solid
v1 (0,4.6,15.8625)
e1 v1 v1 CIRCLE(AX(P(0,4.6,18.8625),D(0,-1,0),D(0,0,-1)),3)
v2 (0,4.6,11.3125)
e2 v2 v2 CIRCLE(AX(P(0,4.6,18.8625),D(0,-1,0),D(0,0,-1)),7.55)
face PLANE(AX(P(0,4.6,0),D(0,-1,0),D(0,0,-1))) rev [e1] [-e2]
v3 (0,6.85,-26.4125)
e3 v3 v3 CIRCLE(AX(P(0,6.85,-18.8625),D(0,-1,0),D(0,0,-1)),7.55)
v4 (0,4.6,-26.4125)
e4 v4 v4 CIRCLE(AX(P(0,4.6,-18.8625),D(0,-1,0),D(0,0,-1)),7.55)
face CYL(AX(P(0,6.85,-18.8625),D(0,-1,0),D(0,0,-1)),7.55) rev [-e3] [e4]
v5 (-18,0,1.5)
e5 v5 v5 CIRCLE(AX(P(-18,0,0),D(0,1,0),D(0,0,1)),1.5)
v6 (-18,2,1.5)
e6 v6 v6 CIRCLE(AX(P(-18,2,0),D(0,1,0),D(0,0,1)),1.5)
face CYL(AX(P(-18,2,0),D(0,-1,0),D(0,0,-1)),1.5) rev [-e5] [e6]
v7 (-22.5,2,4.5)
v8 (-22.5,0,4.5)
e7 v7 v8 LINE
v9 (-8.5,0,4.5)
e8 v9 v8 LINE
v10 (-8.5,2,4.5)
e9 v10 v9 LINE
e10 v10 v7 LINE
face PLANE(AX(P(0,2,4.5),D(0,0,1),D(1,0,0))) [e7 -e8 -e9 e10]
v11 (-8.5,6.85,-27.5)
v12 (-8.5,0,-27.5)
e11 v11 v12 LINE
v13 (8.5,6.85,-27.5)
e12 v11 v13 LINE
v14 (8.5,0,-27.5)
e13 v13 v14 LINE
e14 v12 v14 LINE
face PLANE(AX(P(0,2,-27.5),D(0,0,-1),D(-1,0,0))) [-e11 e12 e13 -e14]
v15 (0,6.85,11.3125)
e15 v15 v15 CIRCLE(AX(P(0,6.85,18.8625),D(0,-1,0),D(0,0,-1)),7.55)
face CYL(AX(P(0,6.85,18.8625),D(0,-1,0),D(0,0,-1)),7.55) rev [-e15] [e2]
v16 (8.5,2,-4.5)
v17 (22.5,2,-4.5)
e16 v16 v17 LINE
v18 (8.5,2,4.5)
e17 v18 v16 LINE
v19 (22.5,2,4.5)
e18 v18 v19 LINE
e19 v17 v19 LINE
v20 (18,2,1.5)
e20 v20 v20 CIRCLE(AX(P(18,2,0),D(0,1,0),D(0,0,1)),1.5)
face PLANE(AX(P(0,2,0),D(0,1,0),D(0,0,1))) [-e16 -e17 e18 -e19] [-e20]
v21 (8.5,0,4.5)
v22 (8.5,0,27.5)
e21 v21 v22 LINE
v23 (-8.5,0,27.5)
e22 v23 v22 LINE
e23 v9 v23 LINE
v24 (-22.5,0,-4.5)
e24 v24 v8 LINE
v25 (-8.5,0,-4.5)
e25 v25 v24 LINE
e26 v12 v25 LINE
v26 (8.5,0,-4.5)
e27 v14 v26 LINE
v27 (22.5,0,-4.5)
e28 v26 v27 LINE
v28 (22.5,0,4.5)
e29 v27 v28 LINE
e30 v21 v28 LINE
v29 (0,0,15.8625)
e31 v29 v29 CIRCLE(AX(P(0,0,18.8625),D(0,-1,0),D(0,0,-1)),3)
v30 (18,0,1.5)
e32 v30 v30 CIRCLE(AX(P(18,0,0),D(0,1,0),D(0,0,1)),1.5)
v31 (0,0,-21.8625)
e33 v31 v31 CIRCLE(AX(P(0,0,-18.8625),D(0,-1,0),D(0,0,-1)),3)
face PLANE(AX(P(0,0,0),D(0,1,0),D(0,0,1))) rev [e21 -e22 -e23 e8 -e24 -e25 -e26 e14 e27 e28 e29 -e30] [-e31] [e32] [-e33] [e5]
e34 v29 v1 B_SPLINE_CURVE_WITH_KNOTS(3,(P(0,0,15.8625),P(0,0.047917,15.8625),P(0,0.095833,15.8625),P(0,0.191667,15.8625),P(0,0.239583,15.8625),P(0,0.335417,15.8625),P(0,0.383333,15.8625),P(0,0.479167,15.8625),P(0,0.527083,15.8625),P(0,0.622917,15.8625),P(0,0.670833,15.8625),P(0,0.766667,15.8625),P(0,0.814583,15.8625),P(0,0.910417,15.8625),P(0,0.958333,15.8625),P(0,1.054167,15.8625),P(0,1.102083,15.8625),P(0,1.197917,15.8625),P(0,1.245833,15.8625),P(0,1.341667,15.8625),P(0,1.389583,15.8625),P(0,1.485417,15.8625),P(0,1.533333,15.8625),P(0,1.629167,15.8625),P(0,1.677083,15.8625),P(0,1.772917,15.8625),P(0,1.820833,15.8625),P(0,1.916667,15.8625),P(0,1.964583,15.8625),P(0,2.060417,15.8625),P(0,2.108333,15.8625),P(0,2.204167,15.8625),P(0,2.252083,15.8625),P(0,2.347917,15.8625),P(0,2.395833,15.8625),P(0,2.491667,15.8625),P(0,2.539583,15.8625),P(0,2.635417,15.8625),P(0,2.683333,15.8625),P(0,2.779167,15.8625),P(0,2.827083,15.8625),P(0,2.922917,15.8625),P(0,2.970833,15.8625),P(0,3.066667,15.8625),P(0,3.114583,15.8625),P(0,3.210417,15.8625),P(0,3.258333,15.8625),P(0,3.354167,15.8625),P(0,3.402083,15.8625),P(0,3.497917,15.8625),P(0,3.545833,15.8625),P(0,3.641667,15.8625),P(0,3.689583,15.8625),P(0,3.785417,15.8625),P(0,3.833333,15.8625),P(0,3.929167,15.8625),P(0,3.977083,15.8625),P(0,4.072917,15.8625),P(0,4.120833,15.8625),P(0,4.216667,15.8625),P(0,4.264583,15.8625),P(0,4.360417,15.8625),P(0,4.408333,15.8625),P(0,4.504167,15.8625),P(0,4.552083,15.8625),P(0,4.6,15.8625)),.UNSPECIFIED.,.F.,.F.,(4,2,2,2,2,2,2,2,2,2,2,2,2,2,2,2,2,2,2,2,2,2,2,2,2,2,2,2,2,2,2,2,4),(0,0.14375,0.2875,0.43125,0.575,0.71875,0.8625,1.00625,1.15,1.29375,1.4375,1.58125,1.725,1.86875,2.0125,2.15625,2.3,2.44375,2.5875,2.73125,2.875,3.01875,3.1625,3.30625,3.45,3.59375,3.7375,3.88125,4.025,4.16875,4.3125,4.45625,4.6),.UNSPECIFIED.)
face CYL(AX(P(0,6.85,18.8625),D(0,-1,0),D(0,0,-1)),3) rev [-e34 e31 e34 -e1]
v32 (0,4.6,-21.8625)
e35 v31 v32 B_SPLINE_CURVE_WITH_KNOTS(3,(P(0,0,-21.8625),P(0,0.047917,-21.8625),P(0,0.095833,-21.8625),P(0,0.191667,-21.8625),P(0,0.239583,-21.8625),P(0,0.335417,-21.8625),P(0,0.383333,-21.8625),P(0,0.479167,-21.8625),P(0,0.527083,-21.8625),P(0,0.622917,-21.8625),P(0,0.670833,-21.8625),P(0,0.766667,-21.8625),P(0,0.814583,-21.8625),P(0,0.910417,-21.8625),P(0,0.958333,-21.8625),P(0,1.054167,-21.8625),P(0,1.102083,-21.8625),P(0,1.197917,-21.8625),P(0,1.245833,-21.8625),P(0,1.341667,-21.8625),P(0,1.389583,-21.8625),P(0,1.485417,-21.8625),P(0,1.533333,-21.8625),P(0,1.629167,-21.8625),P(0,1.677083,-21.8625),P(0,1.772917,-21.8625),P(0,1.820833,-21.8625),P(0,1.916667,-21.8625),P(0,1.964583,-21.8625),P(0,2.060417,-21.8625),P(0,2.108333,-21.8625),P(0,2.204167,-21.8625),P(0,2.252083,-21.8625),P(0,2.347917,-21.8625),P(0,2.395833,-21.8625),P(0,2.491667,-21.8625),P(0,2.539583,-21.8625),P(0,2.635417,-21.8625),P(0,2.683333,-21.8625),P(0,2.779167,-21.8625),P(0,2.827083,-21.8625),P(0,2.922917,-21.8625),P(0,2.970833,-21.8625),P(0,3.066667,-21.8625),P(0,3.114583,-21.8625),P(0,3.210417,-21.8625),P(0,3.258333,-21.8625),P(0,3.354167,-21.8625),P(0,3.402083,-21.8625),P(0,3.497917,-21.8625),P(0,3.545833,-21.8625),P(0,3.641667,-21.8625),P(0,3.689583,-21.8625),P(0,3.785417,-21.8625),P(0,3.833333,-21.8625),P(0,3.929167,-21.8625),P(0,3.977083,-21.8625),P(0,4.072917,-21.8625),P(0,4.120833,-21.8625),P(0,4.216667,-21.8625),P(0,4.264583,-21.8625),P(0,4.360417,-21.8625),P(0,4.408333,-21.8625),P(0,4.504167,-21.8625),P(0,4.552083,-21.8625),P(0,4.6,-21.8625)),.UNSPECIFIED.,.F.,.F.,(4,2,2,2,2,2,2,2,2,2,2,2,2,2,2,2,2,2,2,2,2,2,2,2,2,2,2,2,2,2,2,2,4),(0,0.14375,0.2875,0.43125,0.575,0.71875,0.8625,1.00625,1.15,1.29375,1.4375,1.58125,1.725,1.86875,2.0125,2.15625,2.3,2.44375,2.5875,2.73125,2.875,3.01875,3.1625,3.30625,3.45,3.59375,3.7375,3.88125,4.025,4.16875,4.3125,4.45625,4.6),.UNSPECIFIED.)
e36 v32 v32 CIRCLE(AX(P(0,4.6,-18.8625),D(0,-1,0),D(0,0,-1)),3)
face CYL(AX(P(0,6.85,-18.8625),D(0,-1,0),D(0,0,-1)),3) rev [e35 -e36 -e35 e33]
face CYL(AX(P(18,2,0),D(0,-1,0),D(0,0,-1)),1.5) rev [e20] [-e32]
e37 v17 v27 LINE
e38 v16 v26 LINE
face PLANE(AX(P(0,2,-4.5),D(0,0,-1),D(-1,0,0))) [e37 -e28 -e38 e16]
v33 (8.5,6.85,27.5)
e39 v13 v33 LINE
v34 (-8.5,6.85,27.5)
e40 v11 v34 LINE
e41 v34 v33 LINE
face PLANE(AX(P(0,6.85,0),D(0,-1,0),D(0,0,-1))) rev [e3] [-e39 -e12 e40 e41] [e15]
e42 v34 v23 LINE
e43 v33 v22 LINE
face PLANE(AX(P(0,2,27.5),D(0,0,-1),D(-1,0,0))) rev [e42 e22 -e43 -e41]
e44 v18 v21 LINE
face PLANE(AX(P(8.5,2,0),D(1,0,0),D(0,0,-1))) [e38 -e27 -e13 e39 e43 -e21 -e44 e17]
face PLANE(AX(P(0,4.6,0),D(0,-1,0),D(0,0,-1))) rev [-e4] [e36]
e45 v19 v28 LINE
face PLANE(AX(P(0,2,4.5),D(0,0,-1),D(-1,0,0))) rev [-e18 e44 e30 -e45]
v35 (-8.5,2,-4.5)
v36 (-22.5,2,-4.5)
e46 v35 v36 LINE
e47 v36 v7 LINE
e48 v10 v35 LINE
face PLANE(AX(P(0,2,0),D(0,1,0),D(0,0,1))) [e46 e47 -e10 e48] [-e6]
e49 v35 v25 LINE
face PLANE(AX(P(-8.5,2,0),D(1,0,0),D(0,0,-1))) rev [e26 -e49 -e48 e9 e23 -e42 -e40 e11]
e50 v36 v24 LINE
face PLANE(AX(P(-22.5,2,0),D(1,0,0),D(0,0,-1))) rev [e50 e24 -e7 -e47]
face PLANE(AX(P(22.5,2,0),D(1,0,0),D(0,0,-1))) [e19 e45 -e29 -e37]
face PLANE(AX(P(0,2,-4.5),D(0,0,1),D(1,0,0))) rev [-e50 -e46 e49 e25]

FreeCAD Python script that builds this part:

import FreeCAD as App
import Part
import Sketcher
from FreeCAD import Vector

doc = App.newDocument("Part")
body = doc.addObject("PartDesign::Body", "Body")

# Sketch on XZ plane
sketch1 = body.newObject("Sketcher::SketchObject", "Sketch")
sketch1.AttachmentSupport = (doc.getObject("XZ_Plane"), [""])
sketch1.MapMode = "FlatFace"
sketch1.addGeometry(Part.LineSegment(Vector(-8.5, 4.5, 0), Vector(-8.5, 27.5, 0)), False)
sketch1.addGeometry(Part.LineSegment(Vector(-8.5, 27.5, 0), Vector(8.5, 27.5, 0)), False)
sketch1.addGeometry(Part.LineSegment(Vector(8.5, 27.5, 0), Vector(8.5, 4.5, 0)), False)
sketch1.addGeometry(Part.LineSegment(Vector(8.5, 4.5, 0), Vector(22.5, 4.5, 0)), False)
sketch1.addGeometry(Part.LineSegment(Vector(22.5, 4.5, 0), Vector(22.5, -4.5, 0)), False)
sketch1.addGeometry(Part.LineSegment(Vector(22.5, -4.5, 0), Vector(8.5, -4.5, 0)), False)
sketch1.addGeometry(Part.LineSegment(Vector(8.5, -4.5, 0), Vector(8.5, -27.5, 0)), False)
sketch1.addGeometry(Part.LineSegment(Vector(8.5, -27.5, 0), Vector(-8.5, -27.5, 0)), False)
sketch1.addGeometry(Part.LineSegment(Vector(-8.5, -27.5, 0), Vector(-8.5, -4.5, 0)), False)
sketch1.addGeometry(Part.LineSegment(Vector(-8.5, -4.5, 0), Vector(-22.5, -4.5, 0)), False)
sketch1.addGeometry(Part.LineSegment(Vector(-22.5, -4.5, 0), Vector(-22.5, 4.5, 0)), False)
sketch1.addGeometry(Part.LineSegment(Vector(-22.5, 4.5, 0), Vector(-8.5, 4.5, 0)), False)
sketch1.addGeometry(Part.Circle(Vector(-18, 0, 0), Vector(0, 0, 1), 1.5), False)
sketch1.addGeometry(Part.Circle(Vector(18, 0, 0), Vector(0, 0, 1), 1.5), False)
sketch1.addConstraint(Sketcher.Constraint("Coincident", 0, 2, 1, 1))
sketch1.addConstraint(Sketcher.Constraint("Coincident", 1, 2, 2, 1))
sketch1.addConstraint(Sketcher.Constraint("Coincident", 2, 2, 3, 1))
sketch1.addConstraint(Sketcher.Constraint("Coincident", 3, 2, 4, 1))
sketch1.addConstraint(Sketcher.Constraint("Coincident", 4, 2, 5, 1))
sketch1.addConstraint(Sketcher.Constraint("Coincident", 5, 2, 6, 1))
sketch1.addConstraint(Sketcher.Constraint("Coincident", 6, 2, 7, 1))
sketch1.addConstraint(Sketcher.Constraint("Coincident", 7, 2, 8, 1))
sketch1.addConstraint(Sketcher.Constraint("Coincident", 8, 2, 9, 1))
sketch1.addConstraint(Sketcher.Constraint("Coincident", 9, 2, 10, 1))
sketch1.addConstraint(Sketcher.Constraint("Coincident", 10, 2, 11, 1))
sketch1.addConstraint(Sketcher.Constraint("Coincident", 11, 2, 0, 1))
sketch1.addConstraint(Sketcher.Constraint("Vertical", 0))
sketch1.addConstraint(Sketcher.Constraint("Horizontal", 1))
sketch1.addConstraint(Sketcher.Constraint("Vertical", 2))
sketch1.addConstraint(Sketcher.Constraint("Horizontal", 3))
sketch1.addConstraint(Sketcher.Constraint("Vertical", 4))
sketch1.addConstraint(Sketcher.Constraint("Horizontal", 5))
sketch1.addConstraint(Sketcher.Constraint("Vertical", 6))
sketch1.addConstraint(Sketcher.Constraint("Horizontal", 7))
sketch1.addConstraint(Sketcher.Constraint("Vertical", 8))
sketch1.addConstraint(Sketcher.Constraint("Horizontal", 9))
sketch1.addConstraint(Sketcher.Constraint("Vertical", 10))
sketch1.addConstraint(Sketcher.Constraint("Horizontal", 11))
sketch1.addConstraint(Sketcher.Constraint("Equal", 12, 13))
sketch1.addConstraint(Sketcher.Constraint("Symmetric", 12, 3, 13, 3, -1, 1))
sketch1.addConstraint(Sketcher.Constraint("Symmetric", 0, 2, 6, 2, -1, 1))
sketch1.addConstraint(Sketcher.Constraint("Symmetric", 2, 2, 8, 2, -1, 1))
sketch1.addConstraint(Sketcher.Constraint("Symmetric", 4, 2, 10, 2, -1, 1))
sketch1.addConstraint(Sketcher.Constraint("Symmetric", 5, 2, 8, 2, -2))
sketch1.addConstraint(Sketcher.Constraint("PointOnObject", 12, 3, -1))
sketch1.addConstraint(Sketcher.Constraint("Diameter", 12, 3.0))
sketch1.addConstraint(Sketcher.Constraint("DistanceX", 1, 1, 1, 2, 17.0))
sketch1.addConstraint(Sketcher.Constraint("DistanceX", 3, 1, 3, 2, 14.0))
sketch1.addConstraint(Sketcher.Constraint("DistanceY", 0, 1, 0, 2, 23.0))
sketch1.addConstraint(Sketcher.Constraint("DistanceY", 4, 2, 4, 1, 9.0))
sketch1.addConstraint(Sketcher.Constraint("DistanceX", 12, 3, -1, 1, 18.0))
pad1 = body.newObject("PartDesign::Pad", "Pad")
pad1.Profile = sketch1
pad1.Length = 2
pad1.Reversed = True

# Sketch on XZ plane
sketch2 = body.newObject("Sketcher::SketchObject", "Sketch001")
sketch2.AttachmentSupport = (doc.getObject("XZ_Plane"), [""])
sketch2.MapMode = "FlatFace"
sketch2.AttachmentOffset = App.Placement(Vector(0, 0, -2), App.Rotation())
sketch2.addGeometry(Part.LineSegment(Vector(-8, -28, 0), Vector(-8, 28, 0)), False)
sketch2.addGeometry(Part.LineSegment(Vector(-8, 28, 0), Vector(8, 28, 0)), False)
sketch2.addGeometry(Part.LineSegment(Vector(8, 28, 0), Vector(8, -28, 0)), False)
sketch2.addGeometry(Part.LineSegment(Vector(8, -28, 0), Vector(-8, -28, 0)), False)
sketch2.addConstraint(Sketcher.Constraint("Coincident", 0, 2, 1, 1))
sketch2.addConstraint(Sketcher.Constraint("Coincident", 1, 2, 2, 1))
sketch2.addConstraint(Sketcher.Constraint("Coincident", 2, 2, 3, 1))
sketch2.addConstraint(Sketcher.Constraint("Coincident", 3, 2, 0, 1))
sketch2.addConstraint(Sketcher.Constraint("Vertical", 0))
sketch2.addConstraint(Sketcher.Constraint("Horizontal", 1))
sketch2.addConstraint(Sketcher.Constraint("Vertical", 2))
sketch2.addConstraint(Sketcher.Constraint("Horizontal", 3))
sketch2.addConstraint(Sketcher.Constraint("Symmetric", 0, 2, 2, 2, -1, 1))
sketch2.addConstraint(Sketcher.Constraint("DistanceX", 1, 1, 1, 2, 17.0))
sketch2.addConstraint(Sketcher.Constraint("DistanceY", 0, 1, 0, 2, 55.0))
pad2 = body.newObject("PartDesign::Pad", "Pad001")
pad2.Profile = sketch2
pad2.Length = 2.6
pad2.Reversed = True

# Sketch on XZ plane
sketch3 = body.newObject("Sketcher::SketchObject", "Sketch002")
sketch3.AttachmentSupport = (doc.getObject("XZ_Plane"), [""])
sketch3.MapMode = "FlatFace"
sketch3.AttachmentOffset = App.Placement(Vector(0, 0, -4.6), App.Rotation())
sketch3.addGeometry(Part.LineSegment(Vector(-8, -28, 0), Vector(-8, 28, 0)), False)
sketch3.addGeometry(Part.LineSegment(Vector(-8, 28, 0), Vector(8, 28, 0)), False)
sketch3.addGeometry(Part.LineSegment(Vector(8, 28, 0), Vector(8, -28, 0)), False)
sketch3.addGeometry(Part.LineSegment(Vector(8, -28, 0), Vector(-8, -28, 0)), False)
sketch3.addGeometry(Part.Circle(Vector(0, 19, 0), Vector(0, 0, 1), 8), False)
sketch3.addGeometry(Part.Circle(Vector(0, -19, 0), Vector(0, 0, 1), 8), False)
sketch3.addConstraint(Sketcher.Constraint("Coincident", 0, 2, 1, 1))
sketch3.addConstraint(Sketcher.Constraint("Coincident", 1, 2, 2, 1))
sketch3.addConstraint(Sketcher.Constraint("Coincident", 2, 2, 3, 1))
sketch3.addConstraint(Sketcher.Constraint("Coincident", 3, 2, 0, 1))
sketch3.addConstraint(Sketcher.Constraint("Vertical", 0))
sketch3.addConstraint(Sketcher.Constraint("Horizontal", 1))
sketch3.addConstraint(Sketcher.Constraint("Vertical", 2))
sketch3.addConstraint(Sketcher.Constraint("Horizontal", 3))
sketch3.addConstraint(Sketcher.Constraint("Equal", 4, 5))
sketch3.addConstraint(Sketcher.Constraint("Symmetric", 4, 3, 5, 3, -1, 1))
sketch3.addConstraint(Sketcher.Constraint("Symmetric", 0, 2, 2, 2, -1, 1))
sketch3.addConstraint(Sketcher.Constraint("PointOnObject", 4, 3, -2))
sketch3.addConstraint(Sketcher.Constraint("Diameter", 4, 15.1))
sketch3.addConstraint(Sketcher.Constraint("DistanceX", 1, 1, 1, 2, 17.0))
sketch3.addConstraint(Sketcher.Constraint("DistanceY", 0, 1, 0, 2, 55.0))
sketch3.addConstraint(Sketcher.Constraint("DistanceY", 5, 3, 4, 3, 37.725))
pad3 = body.newObject("PartDesign::Pad", "Pad002")
pad3.Profile = sketch3
pad3.Length = 2.25
pad3.Reversed = True

# Sketch on XZ plane
sketch4 = body.newObject("Sketcher::SketchObject", "Sketch003")
sketch4.AttachmentSupport = (doc.getObject("XZ_Plane"), [""])
sketch4.MapMode = "FlatFace"
sketch4.addGeometry(Part.Circle(Vector(0, -18.9, 0), Vector(0, 0, 1), 3), False)
sketch4.addGeometry(Part.Circle(Vector(0, 18.9, 0), Vector(0, 0, 1), 3), False)
sketch4.addConstraint(Sketcher.Constraint("Equal", 0, 1))
sketch4.addConstraint(Sketcher.Constraint("Symmetric", 0, 3, 1, 3, -1, 1))
sketch4.addConstraint(Sketcher.Constraint("PointOnObject", 0, 3, -2))
sketch4.addConstraint(Sketcher.Constraint("Diameter", 0, 6.0))
sketch4.addConstraint(Sketcher.Constraint("DistanceY", 0, 3, 1, 3, 37.725))
pocket1 = body.newObject("PartDesign::Pocket", "Pocket")
pocket1.Profile = sketch4
pocket1.Type = "ThroughAll"

doc.recompute()
